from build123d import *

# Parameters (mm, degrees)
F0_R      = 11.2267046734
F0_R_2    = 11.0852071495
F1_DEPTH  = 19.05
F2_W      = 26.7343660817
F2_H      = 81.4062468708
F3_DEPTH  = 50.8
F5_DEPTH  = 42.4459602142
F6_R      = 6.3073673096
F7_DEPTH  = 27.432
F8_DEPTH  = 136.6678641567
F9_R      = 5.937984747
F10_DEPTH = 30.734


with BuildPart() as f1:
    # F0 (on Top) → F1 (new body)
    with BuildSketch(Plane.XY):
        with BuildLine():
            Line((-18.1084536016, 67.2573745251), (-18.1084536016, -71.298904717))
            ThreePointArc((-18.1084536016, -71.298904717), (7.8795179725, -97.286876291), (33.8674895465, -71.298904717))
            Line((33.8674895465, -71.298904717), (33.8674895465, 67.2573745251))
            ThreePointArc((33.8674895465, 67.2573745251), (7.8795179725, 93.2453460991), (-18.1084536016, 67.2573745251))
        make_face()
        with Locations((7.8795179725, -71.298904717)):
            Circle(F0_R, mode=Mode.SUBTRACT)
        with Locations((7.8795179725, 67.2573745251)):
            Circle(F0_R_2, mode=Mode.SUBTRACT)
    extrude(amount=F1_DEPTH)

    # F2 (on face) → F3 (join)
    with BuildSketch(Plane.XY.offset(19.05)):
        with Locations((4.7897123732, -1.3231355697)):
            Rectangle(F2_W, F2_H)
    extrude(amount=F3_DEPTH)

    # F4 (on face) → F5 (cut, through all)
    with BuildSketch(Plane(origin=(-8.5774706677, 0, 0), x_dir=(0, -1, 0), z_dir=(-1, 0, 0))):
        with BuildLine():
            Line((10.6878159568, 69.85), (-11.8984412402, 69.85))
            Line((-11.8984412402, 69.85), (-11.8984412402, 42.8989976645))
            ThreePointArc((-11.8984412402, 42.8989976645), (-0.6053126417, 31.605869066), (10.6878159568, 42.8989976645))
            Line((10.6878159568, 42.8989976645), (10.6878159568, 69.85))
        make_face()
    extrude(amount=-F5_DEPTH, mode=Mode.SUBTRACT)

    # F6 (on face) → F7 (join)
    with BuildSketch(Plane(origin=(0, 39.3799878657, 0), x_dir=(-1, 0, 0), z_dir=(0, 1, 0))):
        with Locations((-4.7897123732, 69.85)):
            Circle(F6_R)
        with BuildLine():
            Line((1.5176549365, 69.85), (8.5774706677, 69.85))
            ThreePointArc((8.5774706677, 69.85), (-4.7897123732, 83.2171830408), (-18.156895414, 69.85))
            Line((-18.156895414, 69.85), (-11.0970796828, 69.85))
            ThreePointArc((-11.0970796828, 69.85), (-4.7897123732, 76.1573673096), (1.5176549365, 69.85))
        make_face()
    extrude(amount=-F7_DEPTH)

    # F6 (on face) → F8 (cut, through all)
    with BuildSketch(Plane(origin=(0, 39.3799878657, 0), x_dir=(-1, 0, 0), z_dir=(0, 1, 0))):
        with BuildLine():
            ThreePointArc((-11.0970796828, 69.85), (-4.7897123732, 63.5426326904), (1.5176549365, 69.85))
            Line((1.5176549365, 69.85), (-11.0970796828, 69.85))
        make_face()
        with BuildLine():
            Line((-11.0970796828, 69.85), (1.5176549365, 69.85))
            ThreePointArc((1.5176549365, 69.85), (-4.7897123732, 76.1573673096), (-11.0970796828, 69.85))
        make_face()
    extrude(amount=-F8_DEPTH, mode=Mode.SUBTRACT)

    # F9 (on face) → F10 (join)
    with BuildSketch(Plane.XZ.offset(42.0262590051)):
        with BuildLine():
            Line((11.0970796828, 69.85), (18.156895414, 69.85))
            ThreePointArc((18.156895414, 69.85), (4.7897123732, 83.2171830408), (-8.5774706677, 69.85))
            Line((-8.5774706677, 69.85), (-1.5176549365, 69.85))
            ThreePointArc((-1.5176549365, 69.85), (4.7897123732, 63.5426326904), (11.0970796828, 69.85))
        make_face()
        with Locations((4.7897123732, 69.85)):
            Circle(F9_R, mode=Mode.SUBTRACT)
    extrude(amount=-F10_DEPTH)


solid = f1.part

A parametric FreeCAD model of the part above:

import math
import FreeCAD as App
import Part
import Sketcher
from FreeCAD import Vector
Q = App.Units.Quantity


def add_polygon(sketch, points):
    """Adds a closed chain of lines whose ends are joined by coincident constraints."""
    first, n = sketch.GeometryCount, len(points)
    for a, b in zip(points, points[1:] + points[:1]):
        sketch.addGeometry(Part.LineSegment(App.Vector(*a, 0), App.Vector(*b, 0)), False)
    for i in range(n):
        sketch.addConstraint(Sketcher.Constraint("Coincident", first + i, 2, first + (i + 1) % n, 1))

doc = App.newDocument("Part")
body = doc.addObject("PartDesign::Body", "Body")

# Sketch on XY plane
sketch1 = doc.addObject("Sketcher::SketchObject", "Sketch")
body.addObject(sketch1)
sketch1.AttachmentSupport = (doc.XY_Plane, [""])
sketch1.MapMode = "FlatFace"
sketch1.addGeometry(Part.LineSegment(Vector(-18, 67, 0), Vector(-18, -71, 0)), False)
sketch1.addGeometry(Part.ArcOfCircle(Part.Circle(Vector(8, -71, 0), Vector(0, 0, 1), 26), math.radians(180), math.radians(360)), False)
sketch1.addGeometry(Part.LineSegment(Vector(34, -71, 0), Vector(34, 67, 0)), False)
sketch1.addGeometry(Part.ArcOfCircle(Part.Circle(Vector(8, 67, 0), Vector(0, 0, 1), 26), math.radians(0), math.radians(180)), False)
sketch1.addGeometry(Part.Circle(Vector(8, -71, 0), Vector(0, 0, 1), 11), False)
sketch1.addGeometry(Part.Circle(Vector(8, 67, 0), Vector(0, 0, 1), 11), False)
sketch1.addConstraint(Sketcher.Constraint("Tangent", 0, 2, 1, 1))
sketch1.addConstraint(Sketcher.Constraint("Tangent", 1, 2, 2, 1))
sketch1.addConstraint(Sketcher.Constraint("Tangent", 2, 2, 3, 1))
sketch1.addConstraint(Sketcher.Constraint("Tangent", 3, 2, 0, 1))
sketch1.addConstraint(Sketcher.Constraint("Vertical", 0))
sketch1.addConstraint(Sketcher.Constraint("Vertical", 2))
sketch1.addConstraint(Sketcher.Constraint("Coincident", 4, 3, 1, 3))
sketch1.addConstraint(Sketcher.Constraint("Coincident", 5, 3, 3, 3))
sketch1.addConstraint(Sketcher.Constraint("Diameter", 4, 22.453409))
sketch1.addConstraint(Sketcher.Constraint("Radius", 1, 25.987972))
sketch1.addConstraint(Sketcher.Constraint("Diameter", 5, 22.170414))
sketch1.addConstraint(Sketcher.Constraint("DistanceY", 0, 2, 0, 1, 138.556279))
sketch1.addConstraint(Sketcher.Constraint("DistanceX", -1, 1, 1, 2, 33.86749))
sketch1.addConstraint(Sketcher.Constraint("DistanceY", 1, 3, -1, 1, 71.298905))
pad1 = doc.addObject("PartDesign::Pad", "Pad")
body.addObject(pad1)
pad1.Profile = sketch1
pad1.Length = Q("0.75 in")

# Sketch on XY plane
sketch2 = doc.addObject("Sketcher::SketchObject", "Sketch001")
body.addObject(sketch2)
sketch2.AttachmentSupport = (doc.XY_Plane, [""])
sketch2.MapMode = "FlatFace"
sketch2.AttachmentOffset = App.Placement(Vector(0, 0, 0.75 * 25.4), App.Rotation())
add_polygon(sketch2, [(-9, 39), (-9, -42), (18, -42), (18, 39)])  # lines 0-3
sketch2.addConstraint(Sketcher.Constraint("Vertical", 0))
sketch2.addConstraint(Sketcher.Constraint("Horizontal", 1))
sketch2.addConstraint(Sketcher.Constraint("Vertical", 2))
sketch2.addConstraint(Sketcher.Constraint("Horizontal", 3))
sketch2.addConstraint(Sketcher.Constraint("DistanceX", 1, 1, 1, 2, 26.734366))
sketch2.addConstraint(Sketcher.Constraint("DistanceY", 0, 2, 0, 1, 81.406247))
sketch2.addConstraint(Sketcher.Constraint("DistanceX", 0, 2, -1, 1, 8.577471))
sketch2.addConstraint(Sketcher.Constraint("DistanceY", 0, 2, -1, 1, 42.026259))
pad2 = doc.addObject("PartDesign::Pad", "Pad001")
body.addObject(pad2)
pad2.Profile = sketch2
pad2.Length = Q("2 in")

# Sketch on YZ plane
sketch3 = doc.addObject("Sketcher::SketchObject", "Sketch002")
body.addObject(sketch3)
sketch3.AttachmentSupport = (doc.YZ_Plane, [""])
sketch3.MapMode = "FlatFace"
sketch3.AttachmentOffset = App.Placement(Vector(0, 0, -8.577471), App.Rotation())
sketch3.addGeometry(Part.LineSegment(Vector(-11, 70, 0), Vector(12, 70, 0)), False)
sketch3.addGeometry(Part.LineSegment(Vector(12, 70, 0), Vector(12, 43, 0)), False)
sketch3.addGeometry(Part.ArcOfCircle(Part.Circle(Vector(1, 43, 0), Vector(0, 0, 1), 11), math.radians(180), math.radians(360)), False)
sketch3.addGeometry(Part.LineSegment(Vector(-11, 43, 0), Vector(-11, 70, 0)), False)
sketch3.addConstraint(Sketcher.Constraint("Coincident", 0, 2, 1, 1))
sketch3.addConstraint(Sketcher.Constraint("Tangent", 1, 2, 2, 2))
sketch3.addConstraint(Sketcher.Constraint("Tangent", 2, 1, 3, 1))
sketch3.addConstraint(Sketcher.Constraint("Coincident", 3, 2, 0, 1))
sketch3.addConstraint(Sketcher.Constraint("Horizontal", 0))
sketch3.addConstraint(Sketcher.Constraint("Vertical", 1))
sketch3.addConstraint(Sketcher.Constraint("Vertical", 3))
sketch3.addConstraint(Sketcher.Constraint("DistanceY", -1, 1, 0, 2, Q("2.75 in")))
sketch3.addConstraint(Sketcher.Constraint("Radius", 2, 11.293129))
sketch3.addConstraint(Sketcher.Constraint("DistanceY", 1, 2, 1, 1, 26.951002))
sketch3.addConstraint(Sketcher.Constraint("DistanceX", -1, 1, 0, 2, 11.898441))
pocket1 = doc.addObject("PartDesign::Pocket", "Pocket")
body.addObject(pocket1)
pocket1.Profile = sketch3
pocket1.Type = "ThroughAll"
pocket1.Reversed = True

# Sketch on XZ plane
sketch4 = doc.addObject("Sketcher::SketchObject", "Sketch003")
body.addObject(sketch4)
sketch4.AttachmentSupport = (doc.XZ_Plane, [""])
sketch4.MapMode = "FlatFace"
sketch4.AttachmentOffset = App.Placement(Vector(0, 0, -39.379988), App.Rotation())
sketch4.addGeometry(Part.ArcOfCircle(Part.Circle(Vector(5, 70, 0), Vector(0, 0, 1), 6), math.radians(180), math.radians(360)), False)
sketch4.addGeometry(Part.LineSegment(Vector(-2, 70, 0), Vector(-9, 70, 0)), False)
sketch4.addGeometry(Part.ArcOfCircle(Part.Circle(Vector(5, 70, 0), Vector(0, 0, 1), 13), math.radians(0), math.radians(180)), False)
sketch4.addGeometry(Part.LineSegment(Vector(18, 70, 0), Vector(11, 70, 0)), False)
sketch4.addConstraint(Sketcher.Constraint("Coincident", 0, 1, 1, 1))
sketch4.addConstraint(Sketcher.Constraint("Coincident", 1, 2, 2, 2))
sketch4.addConstraint(Sketcher.Constraint("Coincident", 2, 1, 3, 1))
sketch4.addConstraint(Sketcher.Constraint("Coincident", 3, 2, 0, 2))
sketch4.addConstraint(Sketcher.Constraint("Horizontal", 1))
sketch4.addConstraint(Sketcher.Constraint("Horizontal", 3))
sketch4.addConstraint(Sketcher.Constraint("Coincident", 2, 3, 0, 3))
sketch4.addConstraint(Sketcher.Constraint("Horizontal", 2, 3, 0, 1))
sketch4.addConstraint(Sketcher.Constraint("Horizontal", 1, 2, 2, 1))
sketch4.addConstraint(Sketcher.Constraint("DistanceY", -1, 1, 0, 3, Q("2.75 in")))
sketch4.addConstraint(Sketcher.Constraint("Radius", 0, 6.307367))
sketch4.addConstraint(Sketcher.Constraint("Radius", 2, 13.367183))
sketch4.addConstraint(Sketcher.Constraint("DistanceX", 1, 2, -1, 1, 8.577471))
pad3 = doc.addObject("PartDesign::Pad", "Pad002")
body.addObject(pad3)
pad3.Profile = sketch4
pad3.Length = Q("1.08 in")

# Sketch on XZ plane
sketch5 = doc.addObject("Sketcher::SketchObject", "Sketch004")
body.addObject(sketch5)
sketch5.AttachmentSupport = (doc.XZ_Plane, [""])
sketch5.MapMode = "FlatFace"
sketch5.AttachmentOffset = App.Placement(Vector(0, 0, -39.379988), App.Rotation())
sketch5.addGeometry(Part.ArcOfCircle(Part.Circle(Vector(5, 70, 0), Vector(0, 0, 1), 6), math.radians(180), math.radians(360)), False)
sketch5.addGeometry(Part.ArcOfCircle(Part.Circle(Vector(5, 70, 0), Vector(0, 0, 1), 6), math.radians(0), math.radians(180)), False)
sketch5.addConstraint(Sketcher.Constraint("Tangent", 0, 1, 1, 2))
sketch5.addConstraint(Sketcher.Constraint("Coincident", 1, 1, 0, 2))
sketch5.addConstraint(Sketcher.Constraint("Horizontal", 1, 3, 0, 1))
sketch5.addConstraint(Sketcher.Constraint("Horizontal", 0, 1, 1, 1))
sketch5.addConstraint(Sketcher.Constraint("DistanceY", -1, 1, 0, 3, Q("2.75 in")))
sketch5.addConstraint(Sketcher.Constraint("Radius", 0, 6.307367))
sketch5.addConstraint(Sketcher.Constraint("DistanceX", -1, 1, 1, 1, 11.09708))
pocket2 = doc.addObject("PartDesign::Pocket", "Pocket001")
body.addObject(pocket2)
pocket2.Profile = sketch5
pocket2.Type = "ThroughAll"
pocket2.Reversed = True

# Sketch on XZ plane
sketch6 = doc.addObject("Sketcher::SketchObject", "Sketch005")
body.addObject(sketch6)
sketch6.AttachmentSupport = (doc.XZ_Plane, [""])
sketch6.MapMode = "FlatFace"
sketch6.AttachmentOffset = App.Placement(Vector(0, 0, 42.026259), App.Rotation())
sketch6.addGeometry(Part.LineSegment(Vector(11, 70, 0), Vector(18, 70, 0)), False)
sketch6.addGeometry(Part.ArcOfCircle(Part.Circle(Vector(5, 70, 0), Vector(0, 0, 1), 13), math.radians(0), math.radians(180)), False)
sketch6.addGeometry(Part.LineSegment(Vector(-9, 70, 0), Vector(-2, 70, 0)), False)
sketch6.addGeometry(Part.ArcOfCircle(Part.Circle(Vector(5, 70, 0), Vector(0, 0, 1), 6), math.radians(180), math.radians(360)), False)
sketch6.addGeometry(Part.Circle(Vector(5, 70, 0), Vector(0, 0, 1), 6), False)
sketch6.addConstraint(Sketcher.Constraint("Coincident", 0, 2, 1, 1))
sketch6.addConstraint(Sketcher.Constraint("Coincident", 1, 2, 2, 1))
sketch6.addConstraint(Sketcher.Constraint("Coincident", 2, 2, 3, 1))
sketch6.addConstraint(Sketcher.Constraint("Coincident", 3, 2, 0, 1))
sketch6.addConstraint(Sketcher.Constraint("Horizontal", 0))
sketch6.addConstraint(Sketcher.Constraint("Horizontal", 2))
sketch6.addConstraint(Sketcher.Constraint("Coincident", 3, 3, 1, 3))
sketch6.addConstraint(Sketcher.Constraint("Coincident", 4, 3, 1, 3))
sketch6.addConstraint(Sketcher.Constraint("Horizontal", 4, 3, 0, 2))
sketch6.addConstraint(Sketcher.Constraint("Horizontal", 0, 2, 1, 2))
sketch6.addConstraint(Sketcher.Constraint("DistanceY", -1, 1, 1, 3, Q("2.75 in")))
sketch6.addConstraint(Sketcher.Constraint("Diameter", 4, 11.875969))
sketch6.addConstraint(Sketcher.Constraint("Radius", 1, 13.367183))
sketch6.addConstraint(Sketcher.Constraint("Radius", 3, 6.307367))
sketch6.addConstraint(Sketcher.Constraint("DistanceX", 1, 2, -1, 1, 8.577471))
pad4 = doc.addObject("PartDesign::Pad", "Pad003")
body.addObject(pad4)
pad4.Profile = sketch6
pad4.Length = Q("1.21 in")
pad4.Reversed = True

doc.recompute()
